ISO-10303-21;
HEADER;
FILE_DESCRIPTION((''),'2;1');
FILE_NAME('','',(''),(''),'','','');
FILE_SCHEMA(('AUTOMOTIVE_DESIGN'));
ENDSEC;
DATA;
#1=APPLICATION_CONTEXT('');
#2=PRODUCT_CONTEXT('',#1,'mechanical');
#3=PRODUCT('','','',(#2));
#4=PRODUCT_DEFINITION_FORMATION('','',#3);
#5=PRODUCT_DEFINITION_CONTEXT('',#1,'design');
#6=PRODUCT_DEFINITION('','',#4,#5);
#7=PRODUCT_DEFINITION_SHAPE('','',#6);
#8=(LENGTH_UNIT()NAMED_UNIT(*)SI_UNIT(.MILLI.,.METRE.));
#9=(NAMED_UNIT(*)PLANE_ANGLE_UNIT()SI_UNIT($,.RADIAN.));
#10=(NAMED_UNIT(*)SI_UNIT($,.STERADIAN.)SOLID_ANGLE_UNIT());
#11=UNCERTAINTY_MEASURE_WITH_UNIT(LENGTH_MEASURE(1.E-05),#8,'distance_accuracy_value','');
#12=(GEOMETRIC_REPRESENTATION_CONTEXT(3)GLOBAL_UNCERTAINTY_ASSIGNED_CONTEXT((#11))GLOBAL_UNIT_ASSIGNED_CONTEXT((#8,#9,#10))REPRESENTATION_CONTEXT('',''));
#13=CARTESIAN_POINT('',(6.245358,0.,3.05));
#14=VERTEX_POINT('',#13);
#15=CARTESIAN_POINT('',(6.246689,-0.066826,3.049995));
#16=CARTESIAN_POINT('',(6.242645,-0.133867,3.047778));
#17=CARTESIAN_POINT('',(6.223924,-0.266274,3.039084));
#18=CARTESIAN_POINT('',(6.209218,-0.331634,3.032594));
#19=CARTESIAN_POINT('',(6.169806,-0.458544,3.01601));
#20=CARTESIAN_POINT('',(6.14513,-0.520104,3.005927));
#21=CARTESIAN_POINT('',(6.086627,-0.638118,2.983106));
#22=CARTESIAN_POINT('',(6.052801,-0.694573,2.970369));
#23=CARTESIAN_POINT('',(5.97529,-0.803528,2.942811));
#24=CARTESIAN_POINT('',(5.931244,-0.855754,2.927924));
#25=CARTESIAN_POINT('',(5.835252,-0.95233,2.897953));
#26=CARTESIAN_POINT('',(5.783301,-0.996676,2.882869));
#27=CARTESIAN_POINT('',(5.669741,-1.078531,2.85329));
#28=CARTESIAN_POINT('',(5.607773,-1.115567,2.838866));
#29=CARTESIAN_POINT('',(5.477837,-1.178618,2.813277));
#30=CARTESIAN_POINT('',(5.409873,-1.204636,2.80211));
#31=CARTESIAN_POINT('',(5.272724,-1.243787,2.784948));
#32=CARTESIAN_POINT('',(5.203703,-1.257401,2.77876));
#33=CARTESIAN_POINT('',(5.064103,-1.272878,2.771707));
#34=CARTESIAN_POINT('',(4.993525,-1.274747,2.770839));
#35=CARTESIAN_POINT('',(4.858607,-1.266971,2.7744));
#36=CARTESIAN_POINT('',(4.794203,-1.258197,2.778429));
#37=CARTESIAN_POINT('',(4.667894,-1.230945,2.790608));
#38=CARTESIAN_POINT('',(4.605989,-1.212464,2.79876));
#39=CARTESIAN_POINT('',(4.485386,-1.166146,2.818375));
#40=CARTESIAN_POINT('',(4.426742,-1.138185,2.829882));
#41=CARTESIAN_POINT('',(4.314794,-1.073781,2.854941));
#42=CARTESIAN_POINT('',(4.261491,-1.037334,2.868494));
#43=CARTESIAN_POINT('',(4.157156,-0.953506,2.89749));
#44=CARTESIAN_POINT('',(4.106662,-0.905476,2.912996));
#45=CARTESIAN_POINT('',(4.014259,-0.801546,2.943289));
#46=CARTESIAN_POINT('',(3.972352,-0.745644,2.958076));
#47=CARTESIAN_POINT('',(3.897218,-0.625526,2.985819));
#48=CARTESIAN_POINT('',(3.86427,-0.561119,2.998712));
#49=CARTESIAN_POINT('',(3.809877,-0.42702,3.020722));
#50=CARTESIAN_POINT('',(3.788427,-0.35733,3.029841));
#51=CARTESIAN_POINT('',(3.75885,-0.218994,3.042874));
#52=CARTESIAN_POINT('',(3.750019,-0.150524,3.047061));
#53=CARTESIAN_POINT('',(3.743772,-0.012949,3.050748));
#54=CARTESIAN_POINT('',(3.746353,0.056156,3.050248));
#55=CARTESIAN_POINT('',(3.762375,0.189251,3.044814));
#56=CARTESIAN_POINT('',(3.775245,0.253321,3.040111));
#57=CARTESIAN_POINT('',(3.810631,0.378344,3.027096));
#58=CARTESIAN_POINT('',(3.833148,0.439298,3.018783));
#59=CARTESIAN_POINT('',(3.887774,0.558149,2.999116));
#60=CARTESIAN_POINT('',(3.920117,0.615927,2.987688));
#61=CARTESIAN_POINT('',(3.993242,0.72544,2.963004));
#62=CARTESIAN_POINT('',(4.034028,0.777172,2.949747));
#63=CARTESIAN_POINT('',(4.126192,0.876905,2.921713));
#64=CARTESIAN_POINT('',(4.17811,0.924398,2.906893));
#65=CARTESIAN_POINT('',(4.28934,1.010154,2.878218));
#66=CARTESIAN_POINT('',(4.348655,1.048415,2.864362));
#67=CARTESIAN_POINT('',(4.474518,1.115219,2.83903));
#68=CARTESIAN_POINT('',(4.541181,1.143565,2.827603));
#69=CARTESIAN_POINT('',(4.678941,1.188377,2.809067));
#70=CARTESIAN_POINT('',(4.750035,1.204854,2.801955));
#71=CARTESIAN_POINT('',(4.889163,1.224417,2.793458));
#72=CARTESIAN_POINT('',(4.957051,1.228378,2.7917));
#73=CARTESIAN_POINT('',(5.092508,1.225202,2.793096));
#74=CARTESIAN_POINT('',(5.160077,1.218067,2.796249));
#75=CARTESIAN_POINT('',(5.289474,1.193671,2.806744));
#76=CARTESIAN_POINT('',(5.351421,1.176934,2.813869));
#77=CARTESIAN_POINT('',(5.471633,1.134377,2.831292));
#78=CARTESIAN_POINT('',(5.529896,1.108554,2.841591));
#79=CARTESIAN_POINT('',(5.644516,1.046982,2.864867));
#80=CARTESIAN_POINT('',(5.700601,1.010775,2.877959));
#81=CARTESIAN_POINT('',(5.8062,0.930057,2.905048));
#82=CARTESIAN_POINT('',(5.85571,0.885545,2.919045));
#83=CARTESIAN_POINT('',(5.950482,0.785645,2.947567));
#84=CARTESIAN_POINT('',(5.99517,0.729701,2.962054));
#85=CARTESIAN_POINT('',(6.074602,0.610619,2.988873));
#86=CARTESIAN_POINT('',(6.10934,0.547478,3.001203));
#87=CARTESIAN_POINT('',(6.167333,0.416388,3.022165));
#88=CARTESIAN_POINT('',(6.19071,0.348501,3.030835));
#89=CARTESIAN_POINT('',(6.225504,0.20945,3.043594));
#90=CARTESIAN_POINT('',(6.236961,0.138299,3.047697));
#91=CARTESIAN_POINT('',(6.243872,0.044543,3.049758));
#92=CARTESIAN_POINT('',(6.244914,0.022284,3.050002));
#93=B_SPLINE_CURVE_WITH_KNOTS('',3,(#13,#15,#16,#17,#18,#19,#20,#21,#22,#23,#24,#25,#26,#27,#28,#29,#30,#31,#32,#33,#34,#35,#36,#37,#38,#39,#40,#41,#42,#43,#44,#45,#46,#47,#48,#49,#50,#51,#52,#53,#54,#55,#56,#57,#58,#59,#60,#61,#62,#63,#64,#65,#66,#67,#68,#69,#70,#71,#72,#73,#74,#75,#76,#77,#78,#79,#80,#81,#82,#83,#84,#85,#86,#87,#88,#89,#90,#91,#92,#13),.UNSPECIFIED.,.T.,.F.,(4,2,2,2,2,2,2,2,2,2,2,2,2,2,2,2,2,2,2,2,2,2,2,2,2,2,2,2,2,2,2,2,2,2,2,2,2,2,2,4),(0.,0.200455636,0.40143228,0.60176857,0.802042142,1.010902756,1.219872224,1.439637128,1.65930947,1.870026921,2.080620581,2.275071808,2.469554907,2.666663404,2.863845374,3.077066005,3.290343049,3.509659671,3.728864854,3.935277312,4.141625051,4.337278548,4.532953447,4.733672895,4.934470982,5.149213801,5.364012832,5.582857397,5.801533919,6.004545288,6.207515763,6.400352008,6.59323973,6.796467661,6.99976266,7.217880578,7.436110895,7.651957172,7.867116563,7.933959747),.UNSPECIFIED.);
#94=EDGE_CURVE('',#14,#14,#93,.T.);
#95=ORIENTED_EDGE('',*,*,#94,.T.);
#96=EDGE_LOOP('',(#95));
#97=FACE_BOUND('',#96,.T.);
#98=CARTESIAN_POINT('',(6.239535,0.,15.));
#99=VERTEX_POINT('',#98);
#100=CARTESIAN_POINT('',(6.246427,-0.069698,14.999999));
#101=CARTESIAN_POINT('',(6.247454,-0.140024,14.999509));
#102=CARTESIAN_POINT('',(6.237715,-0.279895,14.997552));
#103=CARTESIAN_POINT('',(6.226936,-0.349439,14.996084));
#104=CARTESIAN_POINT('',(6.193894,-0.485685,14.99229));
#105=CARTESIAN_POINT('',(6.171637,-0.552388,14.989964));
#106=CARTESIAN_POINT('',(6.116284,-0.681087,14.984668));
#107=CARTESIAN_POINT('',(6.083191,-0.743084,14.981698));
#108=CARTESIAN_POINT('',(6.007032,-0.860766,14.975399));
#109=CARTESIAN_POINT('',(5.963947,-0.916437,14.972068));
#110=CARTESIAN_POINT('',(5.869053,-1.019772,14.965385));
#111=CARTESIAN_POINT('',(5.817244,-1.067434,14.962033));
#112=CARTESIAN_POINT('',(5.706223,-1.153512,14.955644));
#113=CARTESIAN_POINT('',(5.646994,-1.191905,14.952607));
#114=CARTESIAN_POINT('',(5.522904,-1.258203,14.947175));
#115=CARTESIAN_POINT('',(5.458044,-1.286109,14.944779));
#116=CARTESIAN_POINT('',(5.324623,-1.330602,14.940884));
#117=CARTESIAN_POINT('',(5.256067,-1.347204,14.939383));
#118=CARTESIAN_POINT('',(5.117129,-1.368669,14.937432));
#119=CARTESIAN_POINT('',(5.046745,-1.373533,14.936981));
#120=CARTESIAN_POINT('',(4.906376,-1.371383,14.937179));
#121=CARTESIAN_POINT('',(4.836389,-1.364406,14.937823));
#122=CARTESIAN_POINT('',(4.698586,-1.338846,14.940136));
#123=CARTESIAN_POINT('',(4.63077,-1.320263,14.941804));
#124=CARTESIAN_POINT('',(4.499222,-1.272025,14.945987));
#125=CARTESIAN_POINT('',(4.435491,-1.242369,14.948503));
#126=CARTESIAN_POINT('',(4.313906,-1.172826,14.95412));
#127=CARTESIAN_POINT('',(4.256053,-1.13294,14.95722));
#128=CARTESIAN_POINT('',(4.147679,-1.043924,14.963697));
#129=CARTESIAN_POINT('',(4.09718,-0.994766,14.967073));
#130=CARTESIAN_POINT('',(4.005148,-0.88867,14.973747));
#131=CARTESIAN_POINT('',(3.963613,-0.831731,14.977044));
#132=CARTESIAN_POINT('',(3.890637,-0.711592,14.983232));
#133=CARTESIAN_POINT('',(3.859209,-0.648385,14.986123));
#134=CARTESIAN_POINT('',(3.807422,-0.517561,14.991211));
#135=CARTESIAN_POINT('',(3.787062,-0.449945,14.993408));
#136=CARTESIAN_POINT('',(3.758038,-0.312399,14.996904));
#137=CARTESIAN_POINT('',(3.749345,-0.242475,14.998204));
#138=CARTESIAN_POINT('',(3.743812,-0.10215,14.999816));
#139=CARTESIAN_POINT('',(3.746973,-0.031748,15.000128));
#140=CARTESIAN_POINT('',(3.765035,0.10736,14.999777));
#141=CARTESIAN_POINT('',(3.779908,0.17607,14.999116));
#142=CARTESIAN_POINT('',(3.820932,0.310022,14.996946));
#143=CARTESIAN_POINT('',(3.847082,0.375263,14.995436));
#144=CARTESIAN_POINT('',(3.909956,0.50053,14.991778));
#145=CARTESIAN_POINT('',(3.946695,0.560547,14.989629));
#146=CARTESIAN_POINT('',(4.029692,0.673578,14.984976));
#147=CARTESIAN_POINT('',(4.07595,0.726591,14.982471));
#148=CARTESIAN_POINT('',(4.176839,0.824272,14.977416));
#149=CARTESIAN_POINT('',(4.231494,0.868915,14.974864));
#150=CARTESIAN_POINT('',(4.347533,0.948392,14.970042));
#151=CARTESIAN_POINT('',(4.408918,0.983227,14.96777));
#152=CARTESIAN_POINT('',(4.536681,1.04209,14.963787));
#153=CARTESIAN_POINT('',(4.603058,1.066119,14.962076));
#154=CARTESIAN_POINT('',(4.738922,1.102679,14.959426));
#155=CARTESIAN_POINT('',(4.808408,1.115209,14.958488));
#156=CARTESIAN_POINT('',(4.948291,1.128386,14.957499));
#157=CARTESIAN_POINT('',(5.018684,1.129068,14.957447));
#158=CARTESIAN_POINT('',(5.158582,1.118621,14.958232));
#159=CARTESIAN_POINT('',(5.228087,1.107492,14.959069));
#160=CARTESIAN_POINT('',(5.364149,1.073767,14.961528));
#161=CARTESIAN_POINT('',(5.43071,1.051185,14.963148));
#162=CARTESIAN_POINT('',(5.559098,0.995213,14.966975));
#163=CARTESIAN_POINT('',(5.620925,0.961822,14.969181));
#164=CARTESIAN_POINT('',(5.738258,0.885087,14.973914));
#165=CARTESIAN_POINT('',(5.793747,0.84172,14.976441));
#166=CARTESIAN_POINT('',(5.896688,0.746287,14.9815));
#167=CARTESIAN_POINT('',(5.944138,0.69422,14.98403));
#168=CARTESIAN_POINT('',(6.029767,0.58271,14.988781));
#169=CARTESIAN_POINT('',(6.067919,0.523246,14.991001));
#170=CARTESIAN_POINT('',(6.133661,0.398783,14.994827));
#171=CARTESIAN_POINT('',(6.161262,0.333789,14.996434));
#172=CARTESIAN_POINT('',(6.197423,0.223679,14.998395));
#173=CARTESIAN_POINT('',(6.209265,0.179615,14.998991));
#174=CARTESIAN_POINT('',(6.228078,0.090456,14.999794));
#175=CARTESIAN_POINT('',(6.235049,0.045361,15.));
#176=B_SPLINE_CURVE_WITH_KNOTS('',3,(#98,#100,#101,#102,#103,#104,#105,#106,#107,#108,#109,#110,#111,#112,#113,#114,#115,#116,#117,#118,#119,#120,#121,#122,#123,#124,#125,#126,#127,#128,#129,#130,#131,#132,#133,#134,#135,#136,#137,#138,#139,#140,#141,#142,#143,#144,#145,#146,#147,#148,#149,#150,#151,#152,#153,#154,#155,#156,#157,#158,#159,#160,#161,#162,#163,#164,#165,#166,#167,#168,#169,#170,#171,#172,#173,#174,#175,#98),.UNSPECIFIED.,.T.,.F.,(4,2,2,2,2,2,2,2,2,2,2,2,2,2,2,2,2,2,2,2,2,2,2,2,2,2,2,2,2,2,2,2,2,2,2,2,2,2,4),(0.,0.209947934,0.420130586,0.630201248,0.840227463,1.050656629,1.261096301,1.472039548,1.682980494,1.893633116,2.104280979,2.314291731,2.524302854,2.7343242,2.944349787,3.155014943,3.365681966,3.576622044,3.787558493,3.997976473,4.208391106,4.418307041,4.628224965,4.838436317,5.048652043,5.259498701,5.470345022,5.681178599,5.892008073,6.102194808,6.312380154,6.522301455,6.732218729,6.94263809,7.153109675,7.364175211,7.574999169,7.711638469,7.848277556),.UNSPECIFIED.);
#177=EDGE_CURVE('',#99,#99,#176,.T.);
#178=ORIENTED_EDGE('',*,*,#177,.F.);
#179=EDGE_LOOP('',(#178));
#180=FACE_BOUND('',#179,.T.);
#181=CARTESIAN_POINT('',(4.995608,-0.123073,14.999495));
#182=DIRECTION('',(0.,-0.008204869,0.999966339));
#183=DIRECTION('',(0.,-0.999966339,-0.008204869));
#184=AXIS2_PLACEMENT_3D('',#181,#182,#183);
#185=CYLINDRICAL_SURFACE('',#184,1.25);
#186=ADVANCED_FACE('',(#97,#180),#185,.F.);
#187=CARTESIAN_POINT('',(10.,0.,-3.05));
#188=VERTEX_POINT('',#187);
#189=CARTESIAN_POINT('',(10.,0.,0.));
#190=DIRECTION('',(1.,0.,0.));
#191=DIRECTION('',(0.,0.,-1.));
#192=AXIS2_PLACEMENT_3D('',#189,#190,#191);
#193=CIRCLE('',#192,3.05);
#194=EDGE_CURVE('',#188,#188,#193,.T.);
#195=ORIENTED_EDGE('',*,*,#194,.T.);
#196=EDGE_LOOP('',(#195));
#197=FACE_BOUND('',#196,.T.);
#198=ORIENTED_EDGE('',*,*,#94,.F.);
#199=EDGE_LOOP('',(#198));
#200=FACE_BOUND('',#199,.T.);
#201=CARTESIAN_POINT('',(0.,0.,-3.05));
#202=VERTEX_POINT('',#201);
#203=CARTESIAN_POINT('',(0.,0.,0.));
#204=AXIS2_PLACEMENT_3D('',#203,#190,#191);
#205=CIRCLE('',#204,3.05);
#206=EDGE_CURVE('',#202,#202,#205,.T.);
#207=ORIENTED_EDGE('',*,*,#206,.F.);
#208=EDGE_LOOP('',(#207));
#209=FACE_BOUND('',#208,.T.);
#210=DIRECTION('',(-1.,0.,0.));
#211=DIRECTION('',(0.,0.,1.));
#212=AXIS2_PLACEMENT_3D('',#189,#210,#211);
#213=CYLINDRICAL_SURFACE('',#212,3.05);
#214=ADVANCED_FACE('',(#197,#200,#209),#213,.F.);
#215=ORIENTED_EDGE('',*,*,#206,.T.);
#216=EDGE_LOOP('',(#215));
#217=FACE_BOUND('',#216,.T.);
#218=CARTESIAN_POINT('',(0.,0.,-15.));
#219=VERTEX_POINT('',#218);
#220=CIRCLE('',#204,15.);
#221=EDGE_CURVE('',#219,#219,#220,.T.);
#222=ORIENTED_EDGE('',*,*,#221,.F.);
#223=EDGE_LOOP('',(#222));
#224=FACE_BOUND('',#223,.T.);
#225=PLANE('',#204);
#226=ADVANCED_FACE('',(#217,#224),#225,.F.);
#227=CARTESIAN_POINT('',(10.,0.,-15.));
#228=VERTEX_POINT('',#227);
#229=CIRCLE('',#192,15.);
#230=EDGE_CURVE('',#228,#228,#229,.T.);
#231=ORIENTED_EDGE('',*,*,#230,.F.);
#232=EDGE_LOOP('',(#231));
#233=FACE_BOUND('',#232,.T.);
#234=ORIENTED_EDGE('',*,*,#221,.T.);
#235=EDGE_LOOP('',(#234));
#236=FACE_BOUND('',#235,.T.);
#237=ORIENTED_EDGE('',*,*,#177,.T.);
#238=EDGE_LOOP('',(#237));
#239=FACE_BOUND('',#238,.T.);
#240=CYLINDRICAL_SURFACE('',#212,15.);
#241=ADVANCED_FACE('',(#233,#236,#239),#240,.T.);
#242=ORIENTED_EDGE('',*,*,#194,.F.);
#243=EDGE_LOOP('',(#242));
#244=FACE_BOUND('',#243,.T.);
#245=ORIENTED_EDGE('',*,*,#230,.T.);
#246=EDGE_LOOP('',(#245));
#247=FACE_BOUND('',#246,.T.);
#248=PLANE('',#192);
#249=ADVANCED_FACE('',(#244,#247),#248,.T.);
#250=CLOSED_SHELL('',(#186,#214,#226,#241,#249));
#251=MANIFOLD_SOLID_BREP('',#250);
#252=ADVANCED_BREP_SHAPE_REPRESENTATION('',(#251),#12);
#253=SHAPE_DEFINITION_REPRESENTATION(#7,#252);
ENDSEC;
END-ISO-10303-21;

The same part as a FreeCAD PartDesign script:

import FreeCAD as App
import Part
import Sketcher

V = App.Vector

doc = App.newDocument("Part")
body = doc.addObject("PartDesign::Body", "Body")

# Sketch on YZ plane
sketch1 = body.newObject("Sketcher::SketchObject", "Sketch")
sketch1.AttachmentSupport = (doc.getObject("YZ_Plane"), [""])
sketch1.MapMode = "FlatFace"
sketch1.addGeometry([
    Part.Circle(V(0, 0, 0), V(0, 0, 1), 15),
    Part.Circle(V(0, 0, 0), V(0, 0, 1), 3),
], False)
sketch1.addConstraint([
    Sketcher.Constraint("Coincident", 0, 3, -1, 1),
    Sketcher.Constraint("Coincident", 1, 3, -1, 1),
    Sketcher.Constraint("Diameter", 0, 30.0),
    Sketcher.Constraint("Diameter", 1, 6.1),
])
pad1 = body.newObject("PartDesign::Pad", "Pad")
pad1.Profile = sketch1
pad1.Length = 10

# Sketch on an angled plane
sketch2 = body.newObject("Sketcher::SketchObject", "Sketch001")
sketch2.Placement = App.Placement(V(4.995608, -0.123073, 14.999495), App.Rotation(V(0, 0.999966339, 0.008204869), V(-0.999999999, 0, 0), V(0, -0.008204869, 0.999966339), "ZXY"))
sketch2.addGeometry(Part.Circle(V(0, 0, 0), V(0, 0, 1), 1.2), False)
sketch2.addConstraint([
    Sketcher.Constraint("Coincident", 0, 3, -1, 1),
    Sketcher.Constraint("Diameter", 0, 2.5),
])
pocket1 = body.newObject("PartDesign::Pocket", "Pocket")
pocket1.Profile = sketch2
pocket1.Type = "UpToFirst"

doc.recompute()
